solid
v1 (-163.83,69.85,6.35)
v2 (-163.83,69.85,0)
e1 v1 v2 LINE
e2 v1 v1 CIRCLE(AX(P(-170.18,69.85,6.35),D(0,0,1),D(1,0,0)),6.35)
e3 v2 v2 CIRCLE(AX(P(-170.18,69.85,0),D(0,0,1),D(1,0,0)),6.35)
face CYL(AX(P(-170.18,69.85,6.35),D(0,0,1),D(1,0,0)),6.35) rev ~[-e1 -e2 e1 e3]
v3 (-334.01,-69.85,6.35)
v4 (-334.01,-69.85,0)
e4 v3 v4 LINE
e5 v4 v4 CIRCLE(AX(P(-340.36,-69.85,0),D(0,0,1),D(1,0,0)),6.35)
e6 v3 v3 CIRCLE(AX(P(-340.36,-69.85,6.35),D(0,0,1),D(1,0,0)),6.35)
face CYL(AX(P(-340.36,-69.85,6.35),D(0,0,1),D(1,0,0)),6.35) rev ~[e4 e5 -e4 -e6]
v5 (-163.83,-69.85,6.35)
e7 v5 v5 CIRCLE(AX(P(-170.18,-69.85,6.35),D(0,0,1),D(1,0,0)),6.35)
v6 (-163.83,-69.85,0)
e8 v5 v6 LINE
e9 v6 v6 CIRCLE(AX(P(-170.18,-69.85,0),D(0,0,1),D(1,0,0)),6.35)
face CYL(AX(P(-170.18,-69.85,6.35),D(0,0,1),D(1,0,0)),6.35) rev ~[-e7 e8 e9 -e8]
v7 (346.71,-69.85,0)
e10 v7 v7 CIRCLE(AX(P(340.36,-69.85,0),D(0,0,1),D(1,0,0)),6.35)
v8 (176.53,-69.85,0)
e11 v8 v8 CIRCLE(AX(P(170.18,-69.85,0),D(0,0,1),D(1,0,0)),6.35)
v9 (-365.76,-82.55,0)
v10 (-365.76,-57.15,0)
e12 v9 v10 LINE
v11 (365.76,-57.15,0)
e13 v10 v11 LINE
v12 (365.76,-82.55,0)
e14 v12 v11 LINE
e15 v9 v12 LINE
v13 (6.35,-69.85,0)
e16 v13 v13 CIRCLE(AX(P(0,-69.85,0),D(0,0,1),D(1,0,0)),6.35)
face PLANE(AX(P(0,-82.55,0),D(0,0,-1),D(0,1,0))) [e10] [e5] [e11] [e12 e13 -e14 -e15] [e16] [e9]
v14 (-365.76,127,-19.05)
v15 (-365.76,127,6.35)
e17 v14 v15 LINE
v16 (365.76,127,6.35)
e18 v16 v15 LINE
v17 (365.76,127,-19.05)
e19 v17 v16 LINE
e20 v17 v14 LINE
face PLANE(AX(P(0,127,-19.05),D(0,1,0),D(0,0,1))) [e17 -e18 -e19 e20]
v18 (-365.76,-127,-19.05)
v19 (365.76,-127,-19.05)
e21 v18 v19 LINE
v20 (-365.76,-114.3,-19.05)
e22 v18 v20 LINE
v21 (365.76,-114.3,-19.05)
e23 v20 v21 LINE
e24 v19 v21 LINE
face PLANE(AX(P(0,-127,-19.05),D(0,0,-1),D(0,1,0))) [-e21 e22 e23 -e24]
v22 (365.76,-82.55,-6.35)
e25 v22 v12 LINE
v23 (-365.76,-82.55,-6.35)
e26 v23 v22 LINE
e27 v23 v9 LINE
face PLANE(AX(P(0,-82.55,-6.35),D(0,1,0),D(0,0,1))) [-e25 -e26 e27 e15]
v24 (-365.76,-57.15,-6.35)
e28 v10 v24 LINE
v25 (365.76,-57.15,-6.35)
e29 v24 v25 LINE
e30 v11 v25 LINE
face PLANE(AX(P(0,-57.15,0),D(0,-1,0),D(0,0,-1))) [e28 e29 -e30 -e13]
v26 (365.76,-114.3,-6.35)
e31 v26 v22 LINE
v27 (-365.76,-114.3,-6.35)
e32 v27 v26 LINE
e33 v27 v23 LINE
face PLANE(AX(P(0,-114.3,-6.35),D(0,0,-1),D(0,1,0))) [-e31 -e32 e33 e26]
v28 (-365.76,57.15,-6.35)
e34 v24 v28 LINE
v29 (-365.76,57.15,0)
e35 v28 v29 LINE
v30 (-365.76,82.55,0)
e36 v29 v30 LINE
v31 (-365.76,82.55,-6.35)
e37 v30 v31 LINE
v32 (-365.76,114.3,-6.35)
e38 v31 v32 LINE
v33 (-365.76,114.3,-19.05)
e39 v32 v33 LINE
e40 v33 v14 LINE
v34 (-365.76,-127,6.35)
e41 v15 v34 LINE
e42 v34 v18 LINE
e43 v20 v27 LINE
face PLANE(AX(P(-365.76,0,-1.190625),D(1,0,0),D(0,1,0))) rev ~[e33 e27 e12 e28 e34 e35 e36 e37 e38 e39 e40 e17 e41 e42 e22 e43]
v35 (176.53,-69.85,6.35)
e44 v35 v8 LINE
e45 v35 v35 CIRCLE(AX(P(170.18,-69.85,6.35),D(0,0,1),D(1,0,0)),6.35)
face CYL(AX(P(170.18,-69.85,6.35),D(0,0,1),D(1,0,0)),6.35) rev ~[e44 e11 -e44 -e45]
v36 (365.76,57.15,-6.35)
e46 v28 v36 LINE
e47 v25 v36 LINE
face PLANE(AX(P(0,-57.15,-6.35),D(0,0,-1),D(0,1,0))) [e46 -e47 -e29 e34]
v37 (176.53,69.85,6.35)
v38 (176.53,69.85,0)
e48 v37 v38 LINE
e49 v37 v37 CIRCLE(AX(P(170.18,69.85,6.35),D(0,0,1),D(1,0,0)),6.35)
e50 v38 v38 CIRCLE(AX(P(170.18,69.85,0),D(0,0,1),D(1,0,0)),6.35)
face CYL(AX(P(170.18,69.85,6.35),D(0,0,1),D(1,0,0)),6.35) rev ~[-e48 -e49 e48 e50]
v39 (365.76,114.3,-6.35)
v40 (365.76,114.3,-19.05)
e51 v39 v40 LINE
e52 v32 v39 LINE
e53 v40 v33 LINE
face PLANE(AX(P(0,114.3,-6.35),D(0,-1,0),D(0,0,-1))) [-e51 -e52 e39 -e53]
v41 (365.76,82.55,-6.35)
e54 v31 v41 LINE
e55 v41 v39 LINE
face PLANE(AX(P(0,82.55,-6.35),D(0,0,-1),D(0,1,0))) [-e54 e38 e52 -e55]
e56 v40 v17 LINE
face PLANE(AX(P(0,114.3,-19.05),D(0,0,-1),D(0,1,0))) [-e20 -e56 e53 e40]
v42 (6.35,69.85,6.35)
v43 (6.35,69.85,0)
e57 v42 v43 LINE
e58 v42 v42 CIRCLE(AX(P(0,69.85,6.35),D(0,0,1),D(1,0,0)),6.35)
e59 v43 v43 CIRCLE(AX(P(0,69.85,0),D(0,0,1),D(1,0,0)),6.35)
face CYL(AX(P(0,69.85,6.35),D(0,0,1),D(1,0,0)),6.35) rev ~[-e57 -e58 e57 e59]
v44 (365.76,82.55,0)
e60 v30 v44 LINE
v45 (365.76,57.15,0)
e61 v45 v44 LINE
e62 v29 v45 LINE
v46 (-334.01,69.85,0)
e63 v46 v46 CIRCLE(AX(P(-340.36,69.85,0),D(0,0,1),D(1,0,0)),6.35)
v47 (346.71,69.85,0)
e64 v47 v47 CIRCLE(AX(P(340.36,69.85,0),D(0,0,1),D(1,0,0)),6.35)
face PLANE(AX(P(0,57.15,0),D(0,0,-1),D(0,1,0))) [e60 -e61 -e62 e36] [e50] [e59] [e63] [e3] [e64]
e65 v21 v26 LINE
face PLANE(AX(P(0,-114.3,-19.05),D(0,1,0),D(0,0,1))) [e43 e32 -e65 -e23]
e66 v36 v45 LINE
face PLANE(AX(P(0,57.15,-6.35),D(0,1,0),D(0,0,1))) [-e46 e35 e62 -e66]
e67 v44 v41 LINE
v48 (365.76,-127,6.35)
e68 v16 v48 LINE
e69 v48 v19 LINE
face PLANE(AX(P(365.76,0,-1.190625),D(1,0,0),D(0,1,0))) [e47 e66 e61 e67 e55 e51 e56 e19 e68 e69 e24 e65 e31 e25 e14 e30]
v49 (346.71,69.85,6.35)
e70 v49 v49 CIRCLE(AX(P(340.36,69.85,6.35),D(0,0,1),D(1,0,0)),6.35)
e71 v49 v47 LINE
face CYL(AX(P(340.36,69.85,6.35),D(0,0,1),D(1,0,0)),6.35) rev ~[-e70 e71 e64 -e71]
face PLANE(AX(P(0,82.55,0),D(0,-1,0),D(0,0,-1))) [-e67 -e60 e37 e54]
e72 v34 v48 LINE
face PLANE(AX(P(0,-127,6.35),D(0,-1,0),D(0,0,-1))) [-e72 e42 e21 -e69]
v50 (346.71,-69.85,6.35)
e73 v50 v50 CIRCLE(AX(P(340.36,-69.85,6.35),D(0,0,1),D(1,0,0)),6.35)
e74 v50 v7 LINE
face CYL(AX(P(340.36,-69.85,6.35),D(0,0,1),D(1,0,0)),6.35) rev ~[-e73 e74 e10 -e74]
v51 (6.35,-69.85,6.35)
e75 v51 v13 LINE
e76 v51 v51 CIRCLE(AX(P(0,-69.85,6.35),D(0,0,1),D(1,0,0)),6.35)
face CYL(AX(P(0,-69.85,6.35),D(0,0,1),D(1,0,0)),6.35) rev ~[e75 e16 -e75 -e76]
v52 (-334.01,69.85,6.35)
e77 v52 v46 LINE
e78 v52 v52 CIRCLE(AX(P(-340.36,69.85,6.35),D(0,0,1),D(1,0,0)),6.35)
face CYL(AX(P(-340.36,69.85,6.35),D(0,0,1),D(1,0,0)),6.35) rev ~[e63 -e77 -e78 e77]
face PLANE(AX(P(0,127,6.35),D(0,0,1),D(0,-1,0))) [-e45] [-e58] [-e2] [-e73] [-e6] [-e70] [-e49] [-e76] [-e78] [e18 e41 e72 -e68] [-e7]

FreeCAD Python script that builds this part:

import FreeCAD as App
import Part
import Sketcher

V = App.Vector
Q = App.Units.Quantity


def add_polygon(sketch, points):
    """Adds a closed chain of lines whose ends are joined by coincident constraints."""
    first, n = sketch.GeometryCount, len(points)
    for a, b in zip(points, points[1:] + points[:1]):
        sketch.addGeometry(Part.LineSegment(App.Vector(*a, 0), App.Vector(*b, 0)), False)
    for i in range(n):
        sketch.addConstraint(Sketcher.Constraint("Coincident", first + i, 2, first + (i + 1) % n, 1))

doc = App.newDocument("Part")
body = doc.addObject("PartDesign::Body", "Body")

sketch1 = doc.addObject("Sketcher::SketchObject", "Sketch")
body.addObject(sketch1)
sketch1.AttachmentSupport = (doc.YZ_Plane, [""])
sketch1.MapMode = "FlatFace"
add_polygon(sketch1, [(127, 6.35), (-127, 6.35), (-127, -19.05), (-114.3, -19.05), (-114.3, -6.35), (-82.55, -6.35), (-82.55, 0), (-57.15, 0), (-57.15, -6.35), (57.15, -6.35), (57.15, 0), (82.55, 0), (82.55, -6.35), (114.3, -6.35), (114.3, -19.05), (127, -19.05)])
sketch1.addConstraint(Sketcher.Constraint("Horizontal", 0))
sketch1.addConstraint(Sketcher.Constraint("Vertical", 1))
sketch1.addConstraint(Sketcher.Constraint("Horizontal", 2))
sketch1.addConstraint(Sketcher.Constraint("Vertical", 3))
sketch1.addConstraint(Sketcher.Constraint("Horizontal", 4))
sketch1.addConstraint(Sketcher.Constraint("Vertical", 5))
sketch1.addConstraint(Sketcher.Constraint("Horizontal", 6))
sketch1.addConstraint(Sketcher.Constraint("Vertical", 7))
sketch1.addConstraint(Sketcher.Constraint("Horizontal", 8))
sketch1.addConstraint(Sketcher.Constraint("Vertical", 9))
sketch1.addConstraint(Sketcher.Constraint("Horizontal", 10))
sketch1.addConstraint(Sketcher.Constraint("Vertical", 11))
sketch1.addConstraint(Sketcher.Constraint("Horizontal", 12))
sketch1.addConstraint(Sketcher.Constraint("Vertical", 13))
sketch1.addConstraint(Sketcher.Constraint("Horizontal", 14))
sketch1.addConstraint(Sketcher.Constraint("Vertical", 15))
sketch1.addConstraint(Sketcher.Constraint("Symmetric", 6, 2, 9, 2, -1, 1))
sketch1.addConstraint(Sketcher.Constraint("Symmetric", 5, 2, 10, 2, -2))
sketch1.addConstraint(Sketcher.Constraint("Symmetric", 3, 2, 12, 2, -2))
sketch1.addConstraint(Sketcher.Constraint("Symmetric", 1, 2, 14, 2, -2))
sketch1.addConstraint(Sketcher.Constraint("Horizontal", 4, 2, 7, 2))
sketch1.addConstraint(Sketcher.Constraint("Equal", 10, 1))
sketch1.addConstraint(Sketcher.Constraint("Equal", 14, 3))
sketch1.addConstraint(Sketcher.Constraint("DistanceX", 0, 2, 0, 1, Q("10 in")))
sketch1.addConstraint(Sketcher.Constraint("DistanceX", 6, 1, 6, 2, Q("1 in")))
sketch1.addConstraint(Sketcher.Constraint("DistanceX", 2, 1, 2, 2, Q("0.5 in")))
sketch1.addConstraint(Sketcher.Constraint("DistanceX", 8, 1, 8, 2, Q("4.5 in")))
sketch1.addConstraint(Sketcher.Constraint("DistanceY", 5, 1, 5, 2, Q("0.25 in")))
pad1 = doc.addObject("PartDesign::Pad", "Pad")
body.addObject(pad1)
pad1.Profile = sketch1
pad1.Length = Q("28.8 in")
pad1.Midplane = True

sketch2 = doc.addObject("Sketcher::SketchObject", "Sketch001")
body.addObject(sketch2)
sketch2.AttachmentSupport = (doc.XY_Plane, [""])
sketch2.MapMode = "FlatFace"
sketch2.AttachmentOffset = App.Placement(V(0, 0, 0.25 * 25.4), App.Rotation())
sketch2.addGeometry(Part.Circle(V(0, -69.85, 0), V(0, 0, 1), 6.35), False)
sketch2.addGeometry(Part.Circle(V(170.18, -69.85, 0), V(0, 0, 1), 6.35), False)
sketch2.addGeometry(Part.Circle(V(340.36, -69.85, 0), V(0, 0, 1), 6.35), False)
sketch2.addGeometry(Part.Circle(V(-170.18, -69.85, 0), V(0, 0, 1), 6.35), False)
sketch2.addGeometry(Part.Circle(V(-340.36, -69.85, 0), V(0, 0, 1), 6.35), False)
sketch2.addGeometry(Part.Circle(V(-340.36, 69.85, 0), V(0, 0, 1), 6.35), False)
sketch2.addGeometry(Part.Circle(V(-170.18, 69.85, 0), V(0, 0, 1), 6.35), False)
sketch2.addGeometry(Part.Circle(V(0, 69.85, 0), V(0, 0, 1), 6.35), False)
sketch2.addGeometry(Part.Circle(V(170.18, 69.85, 0), V(0, 0, 1), 6.35), False)
sketch2.addGeometry(Part.Circle(V(340.36, 69.85, 0), V(0, 0, 1), 6.35), False)
sketch2.addConstraint(Sketcher.Constraint("Equal", 0, 1))
sketch2.addConstraint(Sketcher.Constraint("Equal", 1, 2))
sketch2.addConstraint(Sketcher.Constraint("Equal", 2, 3))
sketch2.addConstraint(Sketcher.Constraint("Equal", 3, 4))
sketch2.addConstraint(Sketcher.Constraint("Equal", 4, 5))
sketch2.addConstraint(Sketcher.Constraint("Equal", 5, 6))
sketch2.addConstraint(Sketcher.Constraint("Equal", 6, 7))
sketch2.addConstraint(Sketcher.Constraint("Equal", 7, 8))
sketch2.addConstraint(Sketcher.Constraint("Equal", 8, 9))
sketch2.addConstraint(Sketcher.Constraint("Symmetric", 2, 3, 5, 3, -1, 1))
sketch2.addConstraint(Sketcher.Constraint("Symmetric", 1, 3, 6, 3, -1, 1))
sketch2.addConstraint(Sketcher.Constraint("Symmetric", 0, 3, 7, 3, -1, 1))
sketch2.addConstraint(Sketcher.Constraint("Symmetric", 3, 3, 8, 3, -1, 1))
sketch2.addConstraint(Sketcher.Constraint("Symmetric", 4, 3, 9, 3, -1, 1))
sketch2.addConstraint(Sketcher.Constraint("Symmetric", 1, 3, 3, 3, -2))
sketch2.addConstraint(Sketcher.Constraint("Symmetric", 2, 3, 4, 3, -2))
sketch2.addConstraint(Sketcher.Constraint("PointOnObject", 0, 3, -2))
sketch2.addConstraint(Sketcher.Constraint("Horizontal", 0, 3, 1, 3))
sketch2.addConstraint(Sketcher.Constraint("Horizontal", 1, 3, 2, 3))
sketch2.addConstraint(Sketcher.Constraint("Diameter", 0, Q("0.5 in")))
sketch2.addConstraint(Sketcher.Constraint("DistanceX", -1, 1, 1, 3, Q("6.7 in")))
sketch2.addConstraint(Sketcher.Constraint("DistanceX", -1, 1, 2, 3, Q("13.4 in")))
sketch2.addConstraint(Sketcher.Constraint("DistanceY", 4, 3, 5, 3, Q("5.5 in")))
pocket1 = doc.addObject("PartDesign::Pocket", "Pocket")
body.addObject(pocket1)
pocket1.Profile = sketch2
pocket1.Length = Q("0.5 in")

doc.recompute()
